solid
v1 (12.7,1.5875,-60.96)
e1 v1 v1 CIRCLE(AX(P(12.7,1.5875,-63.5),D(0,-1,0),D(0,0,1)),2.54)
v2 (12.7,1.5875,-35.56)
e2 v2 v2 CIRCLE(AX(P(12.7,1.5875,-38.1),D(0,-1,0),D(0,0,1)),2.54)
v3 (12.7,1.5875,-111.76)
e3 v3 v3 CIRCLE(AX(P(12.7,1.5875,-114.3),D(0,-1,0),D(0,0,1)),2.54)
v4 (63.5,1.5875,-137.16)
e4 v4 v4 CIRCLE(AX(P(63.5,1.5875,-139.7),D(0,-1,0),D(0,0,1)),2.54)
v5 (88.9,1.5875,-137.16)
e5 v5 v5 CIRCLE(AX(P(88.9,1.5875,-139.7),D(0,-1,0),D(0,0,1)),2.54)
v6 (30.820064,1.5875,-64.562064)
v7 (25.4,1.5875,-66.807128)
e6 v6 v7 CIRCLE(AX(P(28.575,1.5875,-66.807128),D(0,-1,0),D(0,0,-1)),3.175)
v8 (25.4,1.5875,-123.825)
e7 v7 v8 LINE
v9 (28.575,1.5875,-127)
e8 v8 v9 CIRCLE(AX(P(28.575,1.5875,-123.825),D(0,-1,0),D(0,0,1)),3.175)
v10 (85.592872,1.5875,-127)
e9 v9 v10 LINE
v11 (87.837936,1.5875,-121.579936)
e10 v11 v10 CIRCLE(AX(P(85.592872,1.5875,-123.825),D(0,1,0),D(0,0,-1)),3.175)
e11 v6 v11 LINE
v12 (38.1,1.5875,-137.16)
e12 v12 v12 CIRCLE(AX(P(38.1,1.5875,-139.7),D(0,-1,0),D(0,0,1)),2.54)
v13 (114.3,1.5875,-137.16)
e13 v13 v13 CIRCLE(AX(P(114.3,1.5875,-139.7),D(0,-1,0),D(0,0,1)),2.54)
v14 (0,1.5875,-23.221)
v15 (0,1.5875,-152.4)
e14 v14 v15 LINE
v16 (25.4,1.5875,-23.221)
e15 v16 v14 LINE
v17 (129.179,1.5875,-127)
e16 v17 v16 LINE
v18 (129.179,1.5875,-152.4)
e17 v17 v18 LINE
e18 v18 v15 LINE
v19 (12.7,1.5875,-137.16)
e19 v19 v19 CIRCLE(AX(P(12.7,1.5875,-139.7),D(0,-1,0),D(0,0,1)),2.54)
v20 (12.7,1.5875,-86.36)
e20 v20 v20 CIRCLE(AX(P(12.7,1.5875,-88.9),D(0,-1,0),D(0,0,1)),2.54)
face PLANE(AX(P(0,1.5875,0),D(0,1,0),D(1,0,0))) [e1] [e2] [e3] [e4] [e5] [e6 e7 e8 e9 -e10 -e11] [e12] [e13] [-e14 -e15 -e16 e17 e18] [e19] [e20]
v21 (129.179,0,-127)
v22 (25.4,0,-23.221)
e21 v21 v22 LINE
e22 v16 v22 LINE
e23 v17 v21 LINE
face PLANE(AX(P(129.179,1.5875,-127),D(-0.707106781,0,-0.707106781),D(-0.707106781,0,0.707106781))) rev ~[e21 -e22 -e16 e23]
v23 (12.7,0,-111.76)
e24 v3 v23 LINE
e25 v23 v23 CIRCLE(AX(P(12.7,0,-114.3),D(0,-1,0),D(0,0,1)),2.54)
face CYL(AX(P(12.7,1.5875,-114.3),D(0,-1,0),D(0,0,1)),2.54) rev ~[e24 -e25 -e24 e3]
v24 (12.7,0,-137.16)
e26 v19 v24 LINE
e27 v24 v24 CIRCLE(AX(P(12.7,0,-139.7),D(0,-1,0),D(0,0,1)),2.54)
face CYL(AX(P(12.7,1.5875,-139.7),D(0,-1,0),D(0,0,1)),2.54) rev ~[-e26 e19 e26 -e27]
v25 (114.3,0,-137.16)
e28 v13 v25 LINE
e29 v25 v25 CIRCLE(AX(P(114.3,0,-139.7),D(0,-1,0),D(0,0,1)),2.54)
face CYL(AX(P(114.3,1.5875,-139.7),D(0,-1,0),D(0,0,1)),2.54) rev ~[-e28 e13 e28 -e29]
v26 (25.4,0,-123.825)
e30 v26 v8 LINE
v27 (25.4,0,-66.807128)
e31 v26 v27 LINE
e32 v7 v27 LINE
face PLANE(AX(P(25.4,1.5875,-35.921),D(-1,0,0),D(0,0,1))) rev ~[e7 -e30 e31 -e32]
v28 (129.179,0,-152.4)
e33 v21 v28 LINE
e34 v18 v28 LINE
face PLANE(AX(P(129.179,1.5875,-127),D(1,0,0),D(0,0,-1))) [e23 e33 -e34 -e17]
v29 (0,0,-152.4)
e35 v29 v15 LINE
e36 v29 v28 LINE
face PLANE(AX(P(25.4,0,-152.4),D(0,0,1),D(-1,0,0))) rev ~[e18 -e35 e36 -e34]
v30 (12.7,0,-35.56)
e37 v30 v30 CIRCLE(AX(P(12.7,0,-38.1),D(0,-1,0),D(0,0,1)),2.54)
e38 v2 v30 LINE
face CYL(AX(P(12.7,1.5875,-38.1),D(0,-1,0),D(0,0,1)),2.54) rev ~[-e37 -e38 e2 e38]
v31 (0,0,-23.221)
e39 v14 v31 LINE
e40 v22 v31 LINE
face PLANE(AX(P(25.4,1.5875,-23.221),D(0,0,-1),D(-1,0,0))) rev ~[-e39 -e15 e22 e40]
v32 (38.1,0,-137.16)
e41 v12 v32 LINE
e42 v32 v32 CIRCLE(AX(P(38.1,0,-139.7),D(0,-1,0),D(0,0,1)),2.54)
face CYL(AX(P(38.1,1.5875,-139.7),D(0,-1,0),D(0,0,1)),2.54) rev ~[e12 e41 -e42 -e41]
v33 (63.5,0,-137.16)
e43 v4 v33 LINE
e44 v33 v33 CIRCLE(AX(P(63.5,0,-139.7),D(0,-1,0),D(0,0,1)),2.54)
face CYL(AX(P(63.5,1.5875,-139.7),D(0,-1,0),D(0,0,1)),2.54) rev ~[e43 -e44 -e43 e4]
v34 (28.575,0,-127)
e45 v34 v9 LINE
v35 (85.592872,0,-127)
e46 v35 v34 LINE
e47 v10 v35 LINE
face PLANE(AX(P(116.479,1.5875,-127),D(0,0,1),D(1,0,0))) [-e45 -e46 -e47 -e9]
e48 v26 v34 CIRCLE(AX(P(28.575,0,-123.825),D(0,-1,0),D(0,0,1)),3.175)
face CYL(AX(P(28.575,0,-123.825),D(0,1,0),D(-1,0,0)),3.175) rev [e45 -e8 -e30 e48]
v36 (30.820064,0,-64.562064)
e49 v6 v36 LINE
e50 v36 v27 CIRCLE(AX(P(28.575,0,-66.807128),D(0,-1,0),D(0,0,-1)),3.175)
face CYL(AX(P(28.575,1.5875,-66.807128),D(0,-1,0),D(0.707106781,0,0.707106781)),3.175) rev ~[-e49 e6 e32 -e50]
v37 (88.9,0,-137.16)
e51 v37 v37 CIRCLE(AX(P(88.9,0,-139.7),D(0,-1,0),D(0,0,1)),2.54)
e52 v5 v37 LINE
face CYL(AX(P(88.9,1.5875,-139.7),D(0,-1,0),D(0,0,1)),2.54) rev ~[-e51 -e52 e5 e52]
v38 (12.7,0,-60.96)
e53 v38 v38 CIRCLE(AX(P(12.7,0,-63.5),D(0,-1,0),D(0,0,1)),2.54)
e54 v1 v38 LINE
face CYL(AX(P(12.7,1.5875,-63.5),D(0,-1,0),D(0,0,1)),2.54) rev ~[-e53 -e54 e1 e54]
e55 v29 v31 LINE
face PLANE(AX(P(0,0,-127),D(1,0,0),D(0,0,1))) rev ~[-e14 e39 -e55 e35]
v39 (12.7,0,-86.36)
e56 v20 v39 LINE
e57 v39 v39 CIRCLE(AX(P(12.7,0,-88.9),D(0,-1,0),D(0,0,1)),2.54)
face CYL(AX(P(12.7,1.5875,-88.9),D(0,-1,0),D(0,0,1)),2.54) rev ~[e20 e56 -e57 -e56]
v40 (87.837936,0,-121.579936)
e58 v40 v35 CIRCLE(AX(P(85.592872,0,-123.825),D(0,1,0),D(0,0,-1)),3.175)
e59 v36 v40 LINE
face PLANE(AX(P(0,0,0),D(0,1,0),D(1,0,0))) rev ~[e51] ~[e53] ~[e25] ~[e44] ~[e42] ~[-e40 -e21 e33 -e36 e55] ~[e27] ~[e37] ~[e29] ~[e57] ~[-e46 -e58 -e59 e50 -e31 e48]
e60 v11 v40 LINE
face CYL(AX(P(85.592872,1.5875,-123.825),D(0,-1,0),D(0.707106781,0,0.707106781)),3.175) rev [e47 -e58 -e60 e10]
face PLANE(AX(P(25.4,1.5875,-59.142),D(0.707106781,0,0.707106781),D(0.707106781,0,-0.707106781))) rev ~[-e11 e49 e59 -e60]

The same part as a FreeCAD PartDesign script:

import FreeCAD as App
import Part
import Sketcher
Q = App.Units.Quantity


def edges_at(feature, points):
    """Names of the edges that pass closest to the given points."""
    edges = feature.Shape.Edges
    near = lambda p: min(range(len(edges)), key=lambda i: edges[i].distToShape(Part.Vertex(*p))[0])
    return sorted({f"Edge{near(p) + 1}" for p in points})

doc = App.newDocument("Part")
body = doc.addObject("PartDesign::Body", "Body")

# Sketch on XZ plane
sketch1 = doc.addObject("Sketcher::SketchObject", "Sketch")
body.addObject(sketch1)
sketch1.AttachmentSupport = (doc.XZ_Plane, [""])
sketch1.MapMode = "FlatFace"
sketch1.addGeometry([
    Part.LineSegment(App.Vector(0, -152, 0), App.Vector(0, 0, 0)),  # 0
    Part.LineSegment(App.Vector(0, 0, 0), App.Vector(25, 0, 0)),  # 1
    Part.LineSegment(App.Vector(25, 0, 0), App.Vector(152, -127, 0)),  # 2
    Part.LineSegment(App.Vector(152, -127, 0), App.Vector(152, -152, 0)),  # 3
    Part.LineSegment(App.Vector(152, -152, 0), App.Vector(0, -152, 0)),  # 4
    Part.LineSegment(App.Vector(116, -127, 0), App.Vector(25, -36, 0)),  # 5
    Part.LineSegment(App.Vector(25, -36, 0), App.Vector(25, -127, 0)),  # 6
    Part.LineSegment(App.Vector(25, -127, 0), App.Vector(116, -127, 0)),  # 7
], False)
sketch1.addConstraint([
    Sketcher.Constraint("Coincident", 0, 2, 1, 1),
    Sketcher.Constraint("Coincident", 1, 2, 2, 1),
    Sketcher.Constraint("Coincident", 2, 2, 3, 1),
    Sketcher.Constraint("Coincident", 3, 2, 4, 1),
    Sketcher.Constraint("Coincident", 4, 2, 0, 1),
    Sketcher.Constraint("Coincident", 5, 2, 6, 1),
    Sketcher.Constraint("Coincident", 6, 2, 7, 1),
    Sketcher.Constraint("Coincident", 7, 2, 5, 1),
    Sketcher.Constraint("Vertical", 0),
    Sketcher.Constraint("Horizontal", 1),
    Sketcher.Constraint("Vertical", 3),
    Sketcher.Constraint("Horizontal", 4),
    Sketcher.Constraint("Vertical", 6),
    Sketcher.Constraint("Horizontal", 7),
    Sketcher.Constraint("Coincident", 0, 2, -1, 1),
    Sketcher.Constraint("Parallel", 2, 5),
    Sketcher.Constraint("Horizontal", 2, 2, 6, 2),
    Sketcher.Constraint("Vertical", 1, 2, 5, 2),
    Sketcher.Constraint("Equal", 4, 0),
    Sketcher.Constraint("Equal", 1, 3),
    Sketcher.Constraint("DistanceX", 1, 1, 1, 2, Q("1 in")),
    Sketcher.Constraint("DistanceX", 4, 2, 4, 1, Q("6 in")),
    Sketcher.Constraint("DistanceX", 7, 1, 7, 2, 91.079),
])
pad1 = doc.addObject("PartDesign::Pad", "Pad")
body.addObject(pad1)
pad1.Profile = sketch1
pad1.Length = Q("0.0625 in")
pad1.Reversed = True

# Sketch on XZ plane
sketch2 = doc.addObject("Sketcher::SketchObject", "Sketch001")
body.addObject(sketch2)
sketch2.AttachmentSupport = (doc.XZ_Plane, [""])
sketch2.MapMode = "FlatFace"
sketch2.AttachmentOffset = App.Placement(App.Vector(0, 0, -0.0625 * 25.4), App.Rotation())
sketch2.addGeometry([
    Part.Circle(App.Vector(12.7, -139.7, 0), App.Vector(0, 0, 1), 2.5),  # 0
    Part.Circle(App.Vector(38.1, -139.7, 0), App.Vector(0, 0, 1), 2.5),  # 1
    Part.Circle(App.Vector(63.5, -139.7, 0), App.Vector(0, 0, 1), 2.5),  # 2
    Part.Circle(App.Vector(88.9, -139.7, 0), App.Vector(0, 0, 1), 2.5),  # 3
    Part.Circle(App.Vector(114.3, -139.7, 0), App.Vector(0, 0, 1), 2.5),  # 4
    Part.Circle(App.Vector(12.7, -114.3, 0), App.Vector(0, 0, 1), 2.5),  # 5
    Part.Circle(App.Vector(12.7, -88.9, 0), App.Vector(0, 0, 1), 2.5),  # 6
    Part.Circle(App.Vector(12.7, -63.5, 0), App.Vector(0, 0, 1), 2.5),  # 7
    Part.Circle(App.Vector(12.7, -38.1, 0), App.Vector(0, 0, 1), 2.5),  # 8
], False)
sketch2.addConstraint([
    Sketcher.Constraint("Equal", 0, 1),
    Sketcher.Constraint("Equal", 1, 2),
    Sketcher.Constraint("Equal", 2, 3),
    Sketcher.Constraint("Equal", 3, 4),
    Sketcher.Constraint("Equal", 4, 5),
    Sketcher.Constraint("Equal", 5, 6),
    Sketcher.Constraint("Equal", 6, 7),
    Sketcher.Constraint("Equal", 7, 8),
    Sketcher.Constraint("Horizontal", 0, 3, 1, 3),
    Sketcher.Constraint("Horizontal", 1, 3, 2, 3),
    Sketcher.Constraint("Horizontal", 2, 3, 3, 3),
    Sketcher.Constraint("Horizontal", 3, 3, 4, 3),
    Sketcher.Constraint("Vertical", 0, 3, 5, 3),
    Sketcher.Constraint("Vertical", 5, 3, 6, 3),
    Sketcher.Constraint("Vertical", 6, 3, 7, 3),
    Sketcher.Constraint("Vertical", 7, 3, 8, 3),
    Sketcher.Constraint("Diameter", 0, Q("0.2 in")),
    Sketcher.Constraint("DistanceX", 0, 3, 1, 3, Q("1 in")),
    Sketcher.Constraint("DistanceX", 1, 3, 2, 3, Q("1 in")),
    Sketcher.Constraint("DistanceX", 2, 3, 3, 3, Q("1 in")),
    Sketcher.Constraint("DistanceX", 3, 3, 4, 3, Q("1 in")),
    Sketcher.Constraint("DistanceY", 0, 3, 5, 3, Q("1 in")),
    Sketcher.Constraint("DistanceY", 5, 3, 6, 3, Q("1 in")),
    Sketcher.Constraint("DistanceY", 6, 3, 7, 3, Q("1 in")),
    Sketcher.Constraint("DistanceY", 7, 3, 8, 3, Q("1 in")),
    Sketcher.Constraint("DistanceX", -1, 1, 0, 3, Q("0.5 in")),
    Sketcher.Constraint("DistanceY", 0, 3, -1, 1, Q("5.5 in")),
])
doc.recompute()
hole = doc.addObject("PartDesign::Hole", "Hole")
body.addObject(hole)
hole.Profile = sketch2
hole.ThreadType = "None"
hole.Diameter = Q("0.2 in")
hole.DepthType = "ThroughAll"
hole.Reversed = True

# Sketch on XZ plane
sketch3 = doc.addObject("Sketcher::SketchObject", "Sketch002")
body.addObject(sketch3)
sketch3.AttachmentSupport = (doc.XZ_Plane, [""])
sketch3.MapMode = "FlatFace"
sketch3.AttachmentOffset = App.Placement(App.Vector(0, 0, -0.0625 * 25.4), App.Rotation())
sketch3.addGeometry([
    Part.LineSegment(App.Vector(129, -127, 0), App.Vector(116, -127, 0)),  # 0
    Part.LineSegment(App.Vector(116, -127, 0), App.Vector(25, -36, 0)),  # 1
    Part.LineSegment(App.Vector(25, -36, 0), App.Vector(25, -23, 0)),  # 2
    Part.LineSegment(App.Vector(25, -23, 0), App.Vector(0, -23, 0)),  # 3
    Part.LineSegment(App.Vector(0, -23, 0), App.Vector(0, 0, 0)),  # 4
    Part.LineSegment(App.Vector(0, 0, 0), App.Vector(25, 0, 0)),  # 5
    Part.LineSegment(App.Vector(25, 0, 0), App.Vector(152, -127, 0)),  # 6
    Part.LineSegment(App.Vector(152, -127, 0), App.Vector(152, -152, 0)),  # 7
    Part.LineSegment(App.Vector(152, -152, 0), App.Vector(129, -152, 0)),  # 8
    Part.LineSegment(App.Vector(129, -152, 0), App.Vector(129, -127, 0)),  # 9
], False)
sketch3.addConstraint([
    Sketcher.Constraint("Coincident", 0, 2, 1, 1),
    Sketcher.Constraint("Coincident", 1, 2, 2, 1),
    Sketcher.Constraint("Coincident", 2, 2, 3, 1),
    Sketcher.Constraint("Coincident", 3, 2, 4, 1),
    Sketcher.Constraint("Coincident", 4, 2, 5, 1),
    Sketcher.Constraint("Coincident", 5, 2, 6, 1),
    Sketcher.Constraint("Coincident", 6, 2, 7, 1),
    Sketcher.Constraint("Coincident", 7, 2, 8, 1),
    Sketcher.Constraint("Coincident", 8, 2, 9, 1),
    Sketcher.Constraint("Coincident", 9, 2, 0, 1),
    Sketcher.Constraint("Horizontal", 0),
    Sketcher.Constraint("Vertical", 2),
    Sketcher.Constraint("Horizontal", 3),
    Sketcher.Constraint("Vertical", 4),
    Sketcher.Constraint("Horizontal", 5),
    Sketcher.Constraint("Vertical", 7),
    Sketcher.Constraint("Horizontal", 8),
    Sketcher.Constraint("Vertical", 9),
    Sketcher.Constraint("Coincident", 4, 2, -1, 1),
    Sketcher.Constraint("Parallel", 1, 6),
    Sketcher.Constraint("Horizontal", 0, 2, 6, 2),
    Sketcher.Constraint("Vertical", 2, 2, 5, 2),
    Sketcher.Constraint("Equal", 0, 2),
    Sketcher.Constraint("Equal", 8, 4),
    Sketcher.Constraint("Equal", 5, 7),
    Sketcher.Constraint("DistanceX", 0, 2, 0, 1, Q("0.5 in")),
    Sketcher.Constraint("DistanceX", 3, 2, 3, 1, Q("1 in")),
    Sketcher.Constraint("DistanceY", 0, 2, -1, 1, Q("5 in")),
    Sketcher.Constraint("DistanceX", 8, 2, 8, 1, 23.221),
])
pocket1 = doc.addObject("PartDesign::Pocket", "Pocket")
body.addObject(pocket1)
pocket1.Profile = sketch3
pocket1.Length = Q("0.0625 in")
pocket1.Reversed = True

# Sketch on XZ plane
sketch4 = doc.addObject("Sketcher::SketchObject", "Sketch003")
body.addObject(sketch4)
sketch4.AttachmentSupport = (doc.XZ_Plane, [""])
sketch4.MapMode = "FlatFace"
sketch4.AttachmentOffset = App.Placement(App.Vector(0, 0, -0.0625 * 25.4), App.Rotation())
sketch4.addGeometry([
    Part.LineSegment(App.Vector(25, -23, 0), App.Vector(129, -127, 0)),
    Part.LineSegment(App.Vector(129, -127, 0), App.Vector(93, -127, 0)),
    Part.LineSegment(App.Vector(93, -127, 0), App.Vector(25, -59, 0)),
    Part.LineSegment(App.Vector(25, -59, 0), App.Vector(25, -23, 0)),
], False)
sketch4.addConstraint([
    Sketcher.Constraint("Coincident", 0, 2, 1, 1),
    Sketcher.Constraint("Coincident", 1, 2, 2, 1),
    Sketcher.Constraint("Coincident", 2, 2, 3, 1),
    Sketcher.Constraint("Coincident", 3, 2, 0, 1),
    Sketcher.Constraint("Horizontal", 1),
    Sketcher.Constraint("Vertical", 3),
    Sketcher.Constraint("Parallel", 0, 2),
    Sketcher.Constraint("Equal", 1, 3),
    Sketcher.Constraint("DistanceX", -1, 1, 2, 2, Q("1 in")),
    Sketcher.Constraint("DistanceY", 0, 2, -1, 1, Q("5 in")),
    Sketcher.Constraint("DistanceX", 1, 2, 1, 1, 35.921),
    Sketcher.Constraint("Distance", 0, 146.7657),
])
pad2 = doc.addObject("PartDesign::Pad", "Pad001")
body.addObject(pad2)
pad2.Profile = sketch4
pad2.Length = Q("0.0625 in")
doc.recompute()

fillet = doc.addObject("PartDesign::Fillet", "Fillet")
body.addObject(fillet)
fillet.Base = (pad2, edges_at(pad2, [(25.4, 0.794, -127), (93.258, 0.794, -127), (25.4, 0.794, -59.142)]))
fillet.Radius = Q("0.125 in")

doc.recompute()
